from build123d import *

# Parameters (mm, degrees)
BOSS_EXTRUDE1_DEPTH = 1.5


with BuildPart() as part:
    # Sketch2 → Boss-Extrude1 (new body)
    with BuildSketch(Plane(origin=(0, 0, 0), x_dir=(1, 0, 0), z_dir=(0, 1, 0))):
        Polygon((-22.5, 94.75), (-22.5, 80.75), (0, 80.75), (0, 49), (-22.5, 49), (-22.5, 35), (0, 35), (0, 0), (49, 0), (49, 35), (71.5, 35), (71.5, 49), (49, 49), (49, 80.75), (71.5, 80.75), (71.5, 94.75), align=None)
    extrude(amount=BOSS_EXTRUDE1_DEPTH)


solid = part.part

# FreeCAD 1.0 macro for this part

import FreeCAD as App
import Part
import Sketcher

doc = App.newDocument("Part")
body = doc.addObject("PartDesign::Body", "Body")

# Sketch on XZ plane
sketch1 = doc.addObject("Sketcher::SketchObject", "Sketch")
body.addObject(sketch1)
sketch1.AttachmentSupport = (doc.XZ_Plane, [""])
sketch1.MapMode = "FlatFace"
sketch1.addGeometry([
    Part.LineSegment(App.Vector(-22.5, -94.75, 0), App.Vector(-22.5, -80.75, 0)),  # 0
    Part.LineSegment(App.Vector(-22.5, -80.75, 0), App.Vector(0, -80.75, 0)),  # 1
    Part.LineSegment(App.Vector(0, -80.75, 0), App.Vector(0, -49, 0)),  # 2
    Part.LineSegment(App.Vector(0, -49, 0), App.Vector(-22.5, -49, 0)),  # 3
    Part.LineSegment(App.Vector(-22.5, -49, 0), App.Vector(-22.5, -35, 0)),  # 4
    Part.LineSegment(App.Vector(-22.5, -35, 0), App.Vector(0, -35, 0)),  # 5
    Part.LineSegment(App.Vector(0, -35, 0), App.Vector(0, 0, 0)),  # 6
    Part.LineSegment(App.Vector(0, 0, 0), App.Vector(49, 0, 0)),  # 7
    Part.LineSegment(App.Vector(49, 0, 0), App.Vector(49, -35, 0)),  # 8
    Part.LineSegment(App.Vector(49, -35, 0), App.Vector(71.5, -35, 0)),  # 9
    Part.LineSegment(App.Vector(71.5, -35, 0), App.Vector(71.5, -49, 0)),  # 10
    Part.LineSegment(App.Vector(71.5, -49, 0), App.Vector(49, -49, 0)),  # 11
    Part.LineSegment(App.Vector(49, -49, 0), App.Vector(49, -80.75, 0)),  # 12
    Part.LineSegment(App.Vector(49, -80.75, 0), App.Vector(71.5, -80.75, 0)),  # 13
    Part.LineSegment(App.Vector(71.5, -80.75, 0), App.Vector(71.5, -94.75, 0)),  # 14
    Part.LineSegment(App.Vector(71.5, -94.75, 0), App.Vector(-22.5, -94.75, 0)),  # 15
], False)
sketch1.addConstraint([
    Sketcher.Constraint("Coincident", 0, 2, 1, 1),
    Sketcher.Constraint("Coincident", 1, 2, 2, 1),
    Sketcher.Constraint("Coincident", 2, 2, 3, 1),
    Sketcher.Constraint("Coincident", 3, 2, 4, 1),
    Sketcher.Constraint("Coincident", 4, 2, 5, 1),
    Sketcher.Constraint("Coincident", 5, 2, 6, 1),
    Sketcher.Constraint("Coincident", 6, 2, 7, 1),
    Sketcher.Constraint("Coincident", 7, 2, 8, 1),
    Sketcher.Constraint("Coincident", 8, 2, 9, 1),
    Sketcher.Constraint("Coincident", 9, 2, 10, 1),
    Sketcher.Constraint("Coincident", 10, 2, 11, 1),
    Sketcher.Constraint("Coincident", 11, 2, 12, 1),
    Sketcher.Constraint("Coincident", 12, 2, 13, 1),
    Sketcher.Constraint("Coincident", 13, 2, 14, 1),
    Sketcher.Constraint("Coincident", 14, 2, 15, 1),
    Sketcher.Constraint("Coincident", 15, 2, 0, 1),
    Sketcher.Constraint("Vertical", 0),
    Sketcher.Constraint("Horizontal", 1),
    Sketcher.Constraint("Vertical", 2),
    Sketcher.Constraint("Horizontal", 3),
    Sketcher.Constraint("Vertical", 4),
    Sketcher.Constraint("Horizontal", 5),
    Sketcher.Constraint("Vertical", 6),
    Sketcher.Constraint("Horizontal", 7),
    Sketcher.Constraint("Vertical", 8),
    Sketcher.Constraint("Horizontal", 9),
    Sketcher.Constraint("Vertical", 10),
    Sketcher.Constraint("Horizontal", 11),
    Sketcher.Constraint("Vertical", 12),
    Sketcher.Constraint("Horizontal", 13),
    Sketcher.Constraint("Vertical", 14),
    Sketcher.Constraint("Horizontal", 15),
    Sketcher.Constraint("Coincident", 6, 2, -1, 1),
    Sketcher.Constraint("PointOnObject", 1, 2, -2),
    Sketcher.Constraint("Horizontal", 5, 2, 8, 2),
    Sketcher.Constraint("Horizontal", 3, 2, 10, 2),
    Sketcher.Constraint("Horizontal", 1, 2, 12, 2),
    Sketcher.Constraint("Vertical", 0, 2, 3, 2),
    Sketcher.Constraint("Vertical", 8, 2, 11, 2),
    Sketcher.Constraint("Vertical", 10, 2, 13, 2),
    Sketcher.Constraint("Equal", 5, 9),
    Sketcher.Constraint("Equal", 0, 4),
    Sketcher.Constraint("DistanceX", 7, 1, 7, 2, 49.0),
    Sketcher.Constraint("DistanceX", 15, 2, 15, 1, 94.0),
    Sketcher.Constraint("DistanceY", 0, 1, 0, 2, 14.0),
    Sketcher.Constraint("DistanceY", 6, 1, 6, 2, 35.0),
    Sketcher.Constraint("DistanceY", 2, 1, 2, 2, 31.75),
])
pad1 = doc.addObject("PartDesign::Pad", "Pad")
body.addObject(pad1)
pad1.Profile = sketch1
pad1.Length = 1.5
pad1.Reversed = True

doc.recompute()
